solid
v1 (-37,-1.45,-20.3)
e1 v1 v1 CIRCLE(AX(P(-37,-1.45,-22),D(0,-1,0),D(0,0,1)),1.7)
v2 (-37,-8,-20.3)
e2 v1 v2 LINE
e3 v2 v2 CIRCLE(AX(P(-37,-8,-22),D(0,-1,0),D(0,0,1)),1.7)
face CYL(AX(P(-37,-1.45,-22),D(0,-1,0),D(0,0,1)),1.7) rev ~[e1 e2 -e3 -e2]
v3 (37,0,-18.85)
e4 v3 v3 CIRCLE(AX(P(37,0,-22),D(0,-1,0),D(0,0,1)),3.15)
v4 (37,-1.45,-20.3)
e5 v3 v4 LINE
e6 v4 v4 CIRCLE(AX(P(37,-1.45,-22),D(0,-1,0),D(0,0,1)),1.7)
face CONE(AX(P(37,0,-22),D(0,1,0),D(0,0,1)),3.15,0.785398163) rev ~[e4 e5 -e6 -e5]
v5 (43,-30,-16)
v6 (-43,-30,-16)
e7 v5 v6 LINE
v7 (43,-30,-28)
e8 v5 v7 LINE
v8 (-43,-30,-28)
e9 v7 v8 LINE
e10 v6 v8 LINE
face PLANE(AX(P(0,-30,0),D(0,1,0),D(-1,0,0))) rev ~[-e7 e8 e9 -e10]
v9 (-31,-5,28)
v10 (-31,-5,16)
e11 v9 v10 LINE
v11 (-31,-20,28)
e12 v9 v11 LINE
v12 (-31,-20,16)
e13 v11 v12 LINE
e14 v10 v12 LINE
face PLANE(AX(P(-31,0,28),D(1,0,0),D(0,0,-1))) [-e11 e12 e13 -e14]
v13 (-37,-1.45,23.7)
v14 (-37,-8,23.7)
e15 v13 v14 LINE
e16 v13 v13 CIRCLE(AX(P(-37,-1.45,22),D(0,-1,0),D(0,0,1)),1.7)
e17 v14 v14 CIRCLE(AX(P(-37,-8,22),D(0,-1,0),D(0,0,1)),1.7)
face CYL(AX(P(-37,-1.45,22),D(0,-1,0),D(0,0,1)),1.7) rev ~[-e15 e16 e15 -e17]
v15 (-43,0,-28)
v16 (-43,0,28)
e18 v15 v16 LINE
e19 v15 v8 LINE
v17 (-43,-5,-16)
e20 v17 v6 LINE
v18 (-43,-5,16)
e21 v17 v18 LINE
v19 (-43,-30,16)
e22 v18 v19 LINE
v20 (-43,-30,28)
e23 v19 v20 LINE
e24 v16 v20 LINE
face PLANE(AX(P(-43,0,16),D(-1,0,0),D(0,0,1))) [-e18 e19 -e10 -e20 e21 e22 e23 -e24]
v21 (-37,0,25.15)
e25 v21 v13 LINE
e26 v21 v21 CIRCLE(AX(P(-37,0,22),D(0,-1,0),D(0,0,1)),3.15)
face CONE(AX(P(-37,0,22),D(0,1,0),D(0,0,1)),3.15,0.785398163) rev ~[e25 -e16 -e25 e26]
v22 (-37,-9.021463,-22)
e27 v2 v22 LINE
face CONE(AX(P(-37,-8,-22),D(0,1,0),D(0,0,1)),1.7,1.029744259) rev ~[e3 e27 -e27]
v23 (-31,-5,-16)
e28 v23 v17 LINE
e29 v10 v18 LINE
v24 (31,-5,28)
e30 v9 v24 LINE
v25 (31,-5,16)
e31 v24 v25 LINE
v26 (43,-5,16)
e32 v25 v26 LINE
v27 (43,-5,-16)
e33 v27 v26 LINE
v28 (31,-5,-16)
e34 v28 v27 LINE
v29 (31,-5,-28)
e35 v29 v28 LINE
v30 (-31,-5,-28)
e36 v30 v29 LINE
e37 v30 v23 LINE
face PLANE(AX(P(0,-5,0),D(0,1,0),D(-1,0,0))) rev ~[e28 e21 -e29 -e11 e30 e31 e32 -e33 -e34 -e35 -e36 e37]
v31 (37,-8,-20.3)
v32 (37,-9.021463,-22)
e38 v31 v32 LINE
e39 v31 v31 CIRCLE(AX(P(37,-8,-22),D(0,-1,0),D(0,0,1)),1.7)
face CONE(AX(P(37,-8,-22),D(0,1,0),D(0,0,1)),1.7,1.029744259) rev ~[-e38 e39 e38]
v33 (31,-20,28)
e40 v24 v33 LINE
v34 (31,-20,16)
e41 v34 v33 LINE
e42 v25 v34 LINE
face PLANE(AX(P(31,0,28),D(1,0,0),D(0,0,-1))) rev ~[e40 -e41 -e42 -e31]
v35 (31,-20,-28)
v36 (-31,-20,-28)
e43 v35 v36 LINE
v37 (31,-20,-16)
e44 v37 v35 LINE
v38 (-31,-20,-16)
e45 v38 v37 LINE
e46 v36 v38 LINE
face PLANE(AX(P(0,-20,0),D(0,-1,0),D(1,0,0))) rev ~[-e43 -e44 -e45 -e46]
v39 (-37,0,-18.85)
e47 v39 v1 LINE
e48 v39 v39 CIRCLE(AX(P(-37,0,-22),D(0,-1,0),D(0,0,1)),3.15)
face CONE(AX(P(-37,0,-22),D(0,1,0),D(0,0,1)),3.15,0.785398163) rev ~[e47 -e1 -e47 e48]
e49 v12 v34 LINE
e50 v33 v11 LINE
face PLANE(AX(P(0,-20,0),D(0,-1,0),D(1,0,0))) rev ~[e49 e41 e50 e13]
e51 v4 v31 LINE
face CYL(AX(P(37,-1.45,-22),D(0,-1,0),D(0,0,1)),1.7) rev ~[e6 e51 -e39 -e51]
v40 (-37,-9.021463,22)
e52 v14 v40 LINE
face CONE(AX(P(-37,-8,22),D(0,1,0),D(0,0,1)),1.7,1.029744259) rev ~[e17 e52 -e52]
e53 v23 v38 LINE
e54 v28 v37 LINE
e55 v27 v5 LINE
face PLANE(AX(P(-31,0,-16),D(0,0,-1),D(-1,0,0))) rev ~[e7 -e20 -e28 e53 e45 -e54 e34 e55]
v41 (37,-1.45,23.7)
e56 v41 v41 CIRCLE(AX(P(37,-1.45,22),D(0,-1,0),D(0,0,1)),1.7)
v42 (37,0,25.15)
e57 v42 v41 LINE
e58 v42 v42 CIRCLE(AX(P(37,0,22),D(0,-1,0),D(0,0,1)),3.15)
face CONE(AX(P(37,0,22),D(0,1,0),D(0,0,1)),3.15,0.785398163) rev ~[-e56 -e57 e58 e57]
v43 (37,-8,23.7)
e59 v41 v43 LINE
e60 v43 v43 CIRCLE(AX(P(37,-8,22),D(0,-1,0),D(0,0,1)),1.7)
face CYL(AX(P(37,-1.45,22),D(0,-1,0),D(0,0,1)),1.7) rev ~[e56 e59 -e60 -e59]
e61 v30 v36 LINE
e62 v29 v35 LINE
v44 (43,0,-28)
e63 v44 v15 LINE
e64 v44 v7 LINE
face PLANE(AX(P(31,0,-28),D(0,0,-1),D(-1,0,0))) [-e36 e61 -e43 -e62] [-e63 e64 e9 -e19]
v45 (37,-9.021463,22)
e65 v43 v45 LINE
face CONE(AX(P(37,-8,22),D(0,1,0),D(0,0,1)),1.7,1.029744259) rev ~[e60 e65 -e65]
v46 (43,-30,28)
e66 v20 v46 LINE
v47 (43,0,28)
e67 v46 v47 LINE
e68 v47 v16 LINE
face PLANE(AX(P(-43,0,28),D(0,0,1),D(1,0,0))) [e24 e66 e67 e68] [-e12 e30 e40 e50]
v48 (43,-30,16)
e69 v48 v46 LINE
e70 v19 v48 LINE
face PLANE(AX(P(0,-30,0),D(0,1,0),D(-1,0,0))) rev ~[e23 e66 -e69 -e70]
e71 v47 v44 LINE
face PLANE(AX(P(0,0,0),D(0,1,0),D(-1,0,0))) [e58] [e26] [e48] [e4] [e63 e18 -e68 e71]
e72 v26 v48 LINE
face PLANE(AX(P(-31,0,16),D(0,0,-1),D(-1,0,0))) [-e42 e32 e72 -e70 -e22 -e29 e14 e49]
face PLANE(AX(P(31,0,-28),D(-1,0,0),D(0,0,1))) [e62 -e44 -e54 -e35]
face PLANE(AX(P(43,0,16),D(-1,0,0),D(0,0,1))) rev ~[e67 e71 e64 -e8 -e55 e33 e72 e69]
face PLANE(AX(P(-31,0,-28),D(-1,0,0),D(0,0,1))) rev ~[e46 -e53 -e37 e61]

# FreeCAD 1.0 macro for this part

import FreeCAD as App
import Part
import Sketcher

V = App.Vector


def add_polygon(sketch, points):
    """Adds a closed chain of lines whose ends are joined by coincident constraints."""
    first, n = sketch.GeometryCount, len(points)
    for a, b in zip(points, points[1:] + points[:1]):
        sketch.addGeometry(Part.LineSegment(App.Vector(*a, 0), App.Vector(*b, 0)), False)
    for i in range(n):
        sketch.addConstraint(Sketcher.Constraint("Coincident", first + i, 2, first + (i + 1) % n, 1))

doc = App.newDocument("Part")
body = doc.addObject("PartDesign::Body", "Body")

sketch1 = body.newObject("Sketcher::SketchObject", "Sketch")
sketch1.AttachmentSupport = (doc.getObject("XZ_Plane"), [""])
sketch1.MapMode = "FlatFace"
add_polygon(sketch1, [(-43, 28), (43, 28), (43, -28), (-43, -28)])
sketch1.addConstraint(Sketcher.Constraint("Horizontal", 0))
sketch1.addConstraint(Sketcher.Constraint("Vertical", 1))
sketch1.addConstraint(Sketcher.Constraint("Horizontal", 2))
sketch1.addConstraint(Sketcher.Constraint("Vertical", 3))
sketch1.addConstraint(Sketcher.Constraint("Symmetric", 0, 2, 2, 2, -1, 1))
sketch1.addConstraint(Sketcher.Constraint("DistanceX", 0, 1, 0, 2, 86.0))
sketch1.addConstraint(Sketcher.Constraint("DistanceY", 1, 2, 1, 1, 56.0))
pad1 = body.newObject("PartDesign::Pad", "Pad")
pad1.Profile = sketch1
pad1.Length = 5

sketch2 = body.newObject("Sketcher::SketchObject", "Sketch001")
sketch2.AttachmentSupport = (doc.getObject("XZ_Plane"), [""])
sketch2.MapMode = "FlatFace"
add_polygon(sketch2, [(-31, 28), (-31, 16), (-43, 16), (-43, 28)])
add_polygon(sketch2, [(-43, -28), (-43, -16), (-31, -16), (-31, -28)])
add_polygon(sketch2, [(31, 16), (31, 28), (43, 28), (43, 16)])
add_polygon(sketch2, [(43, -28), (31, -28), (31, -16), (43, -16)])
sketch2.addConstraint(Sketcher.Constraint("Vertical", 0))
sketch2.addConstraint(Sketcher.Constraint("Horizontal", 1))
sketch2.addConstraint(Sketcher.Constraint("Vertical", 2))
sketch2.addConstraint(Sketcher.Constraint("Horizontal", 3))
sketch2.addConstraint(Sketcher.Constraint("Vertical", 4))
sketch2.addConstraint(Sketcher.Constraint("Horizontal", 5))
sketch2.addConstraint(Sketcher.Constraint("Vertical", 6))
sketch2.addConstraint(Sketcher.Constraint("Horizontal", 7))
sketch2.addConstraint(Sketcher.Constraint("Vertical", 8))
sketch2.addConstraint(Sketcher.Constraint("Horizontal", 9))
sketch2.addConstraint(Sketcher.Constraint("Vertical", 10))
sketch2.addConstraint(Sketcher.Constraint("Horizontal", 11))
sketch2.addConstraint(Sketcher.Constraint("Horizontal", 12))
sketch2.addConstraint(Sketcher.Constraint("Vertical", 13))
sketch2.addConstraint(Sketcher.Constraint("Horizontal", 14))
sketch2.addConstraint(Sketcher.Constraint("Vertical", 15))
sketch2.addConstraint(Sketcher.Constraint("Symmetric", 6, 2, 8, 2, -1, 1))
sketch2.addConstraint(Sketcher.Constraint("Symmetric", 4, 2, 10, 2, -1, 1))
sketch2.addConstraint(Sketcher.Constraint("Symmetric", 3, 2, 12, 2, -1, 1))
sketch2.addConstraint(Sketcher.Constraint("Symmetric", 1, 2, 14, 2, -1, 1))
sketch2.addConstraint(Sketcher.Constraint("Symmetric", 3, 2, 8, 2, -2))
sketch2.addConstraint(Sketcher.Constraint("Symmetric", 1, 2, 10, 2, -2))
sketch2.addConstraint(Sketcher.Constraint("Equal", 14, 0))
sketch2.addConstraint(Sketcher.Constraint("DistanceX", 1, 2, 1, 1, 12.0))
sketch2.addConstraint(Sketcher.Constraint("DistanceY", 4, 2, 2, 2, 44.0))
sketch2.addConstraint(Sketcher.Constraint("DistanceX", 2, 2, 8, 2, 74.0))
pad2 = body.newObject("PartDesign::Pad", "Pad001")
pad2.Profile = sketch2
pad2.Length = 30

sketch3 = body.newObject("Sketcher::SketchObject", "Sketch002")
sketch3.AttachmentSupport = (doc.getObject("XZ_Plane"), [""])
sketch3.MapMode = "FlatFace"
sketch3.addGeometry(Part.Circle(V(-37, 22, 0), V(0, 0, 1), 1.7), False)
sketch3.addGeometry(Part.Circle(V(-37, -22, 0), V(0, 0, 1), 1.7), False)
sketch3.addGeometry(Part.Circle(V(37, -22, 0), V(0, 0, 1), 1.7), False)
sketch3.addGeometry(Part.Circle(V(37, 22, 0), V(0, 0, 1), 1.7), False)
sketch3.addConstraint(Sketcher.Constraint("Equal", 0, 1))
sketch3.addConstraint(Sketcher.Constraint("Equal", 1, 2))
sketch3.addConstraint(Sketcher.Constraint("Equal", 2, 3))
sketch3.addConstraint(Sketcher.Constraint("Symmetric", 0, 3, 2, 3, -1, 1))
sketch3.addConstraint(Sketcher.Constraint("Symmetric", 1, 3, 3, 3, -1, 1))
sketch3.addConstraint(Sketcher.Constraint("Symmetric", 1, 3, 2, 3, -2))
sketch3.addConstraint(Sketcher.Constraint("Diameter", 0, 3.4))
sketch3.addConstraint(Sketcher.Constraint("DistanceX", 0, 3, -1, 1, 37.0))
sketch3.addConstraint(Sketcher.Constraint("DistanceY", -1, 1, 0, 3, 22.0))
doc.recompute()
hole = body.newObject("PartDesign::Hole", "Hole")
hole.Profile = sketch3
hole.ThreadType = "None"
hole.Diameter = 3.4
hole.DepthType = "Dimension"
hole.Depth = 8
hole.DrillPoint = "Angled"
hole.DrillPointAngle = 118
hole.HoleCutType = "Countersink"
hole.HoleCutDiameter = 6.3
hole.HoleCutCountersinkAngle = 90
hole.Reversed = True

sketch4 = body.newObject("Sketcher::SketchObject", "Sketch003")
sketch4.AttachmentSupport = (doc.getObject("XZ_Plane"), [""])
sketch4.MapMode = "FlatFace"
sketch4.AttachmentOffset = App.Placement(V(0, 0, 30), App.Rotation())
add_polygon(sketch4, [(31, 16), (31, 28), (-31, 28), (-31, 16)])
add_polygon(sketch4, [(-31, -28), (31, -28), (31, -16), (-31, -16)])
sketch4.addConstraint(Sketcher.Constraint("Vertical", 0))
sketch4.addConstraint(Sketcher.Constraint("Horizontal", 1))
sketch4.addConstraint(Sketcher.Constraint("Vertical", 2))
sketch4.addConstraint(Sketcher.Constraint("Horizontal", 3))
sketch4.addConstraint(Sketcher.Constraint("Horizontal", 4))
sketch4.addConstraint(Sketcher.Constraint("Vertical", 5))
sketch4.addConstraint(Sketcher.Constraint("Horizontal", 6))
sketch4.addConstraint(Sketcher.Constraint("Vertical", 7))
sketch4.addConstraint(Sketcher.Constraint("Symmetric", 1, 2, 4, 2, -1, 1))
sketch4.addConstraint(Sketcher.Constraint("Symmetric", 3, 2, 6, 2, -1, 1))
sketch4.addConstraint(Sketcher.Constraint("Vertical", 3, 2, 4, 2))
sketch4.addConstraint(Sketcher.Constraint("DistanceX", 1, 2, 1, 1, 62.0))
sketch4.addConstraint(Sketcher.Constraint("DistanceY", 0, 1, 0, 2, 12.0))
sketch4.addConstraint(Sketcher.Constraint("DistanceY", -1, 1, 0, 2, 28.0))
pad3 = body.newObject("PartDesign::Pad", "Pad002")
pad3.Profile = sketch4
pad3.Length = 10
pad3.Reversed = True

doc.recompute()
